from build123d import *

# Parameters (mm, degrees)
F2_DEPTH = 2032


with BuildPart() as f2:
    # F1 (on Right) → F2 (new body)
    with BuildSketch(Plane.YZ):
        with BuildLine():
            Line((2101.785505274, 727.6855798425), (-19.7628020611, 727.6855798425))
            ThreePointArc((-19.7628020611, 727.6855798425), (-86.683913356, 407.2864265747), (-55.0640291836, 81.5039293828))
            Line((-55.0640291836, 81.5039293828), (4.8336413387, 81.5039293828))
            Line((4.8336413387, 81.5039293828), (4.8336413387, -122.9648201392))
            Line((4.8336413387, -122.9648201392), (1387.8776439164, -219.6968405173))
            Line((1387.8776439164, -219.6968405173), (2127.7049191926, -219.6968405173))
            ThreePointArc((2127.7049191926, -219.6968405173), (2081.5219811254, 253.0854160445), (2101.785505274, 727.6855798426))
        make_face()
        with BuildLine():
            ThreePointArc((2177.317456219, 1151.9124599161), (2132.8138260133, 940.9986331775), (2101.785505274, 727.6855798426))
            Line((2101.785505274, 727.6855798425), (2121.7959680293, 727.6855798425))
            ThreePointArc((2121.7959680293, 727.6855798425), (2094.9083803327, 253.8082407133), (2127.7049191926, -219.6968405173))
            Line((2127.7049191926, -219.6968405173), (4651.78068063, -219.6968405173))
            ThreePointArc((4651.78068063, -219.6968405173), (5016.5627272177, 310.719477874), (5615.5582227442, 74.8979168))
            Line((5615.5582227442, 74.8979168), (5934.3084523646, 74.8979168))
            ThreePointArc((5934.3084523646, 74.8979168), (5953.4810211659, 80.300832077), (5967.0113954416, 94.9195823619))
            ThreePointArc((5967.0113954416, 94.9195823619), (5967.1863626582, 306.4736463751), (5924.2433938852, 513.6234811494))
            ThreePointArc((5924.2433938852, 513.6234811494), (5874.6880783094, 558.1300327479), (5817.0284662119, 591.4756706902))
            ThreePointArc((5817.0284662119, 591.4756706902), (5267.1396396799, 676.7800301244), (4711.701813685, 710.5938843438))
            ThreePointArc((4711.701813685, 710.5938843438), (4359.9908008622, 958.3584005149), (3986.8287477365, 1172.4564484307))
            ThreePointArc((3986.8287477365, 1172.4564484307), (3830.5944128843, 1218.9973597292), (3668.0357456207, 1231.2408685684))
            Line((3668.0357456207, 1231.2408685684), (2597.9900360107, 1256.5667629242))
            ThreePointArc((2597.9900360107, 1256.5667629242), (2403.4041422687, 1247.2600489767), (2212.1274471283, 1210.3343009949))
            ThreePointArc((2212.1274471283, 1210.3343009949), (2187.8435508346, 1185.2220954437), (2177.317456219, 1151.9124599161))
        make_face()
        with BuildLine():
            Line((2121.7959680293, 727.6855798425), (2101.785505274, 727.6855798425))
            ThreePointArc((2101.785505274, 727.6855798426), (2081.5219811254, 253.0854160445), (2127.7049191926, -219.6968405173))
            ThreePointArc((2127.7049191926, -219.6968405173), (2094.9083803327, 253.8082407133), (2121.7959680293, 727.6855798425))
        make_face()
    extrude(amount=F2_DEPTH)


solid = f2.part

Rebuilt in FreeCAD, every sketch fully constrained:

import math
import FreeCAD as App
import Part
import Sketcher
from FreeCAD import Vector
Q = App.Units.Quantity

doc = App.newDocument("Part")
params = doc.addObject("Spreadsheet::Sheet", "Params")
for row, (alias, value) in enumerate([
    ("sketch1_radius", "30 in"),
    ("sketch1_radius2", "3 in"),
    ("pad1_length", "80 in"),
], start=1):
    params.set(f"A{row}", alias)
    params.set(f"B{row}", "=" + value)
    params.setAlias(f"B{row}", alias)

body = doc.addObject("PartDesign::Body", "Body")

sketch1 = body.newObject("Sketcher::SketchObject", "Sketch")
sketch1.AttachmentSupport = (doc.getObject("YZ_Plane"), [""])
sketch1.MapMode = "FlatFace"
sketch1.addGeometry(Part.LineSegment(Vector(2102, 728, 0), Vector(-20, 728, 0)), False)
sketch1.addGeometry(Part.ArcOfCircle(Part.Circle(Vector(997, 348, 0), Vector(0, 0, 1), 1086), math.radians(160), math.radians(194)), False)
sketch1.addGeometry(Part.LineSegment(Vector(-55, 82, 0), Vector(5, 82, 0)), False)
sketch1.addGeometry(Part.LineSegment(Vector(5, 82, 0), Vector(5, -123, 0)), False)
sketch1.addGeometry(Part.LineSegment(Vector(5, -123, 0), Vector(1388, -220, 0)), False)
sketch1.addGeometry(Part.LineSegment(Vector(1388, -220, 0), Vector(4652, -220, 0)), False)
sketch1.addGeometry(Part.ArcOfCircle(Part.Circle(Vector(5168, -184, 0), Vector(0, 0, 1), 517), math.radians(30), math.radians(184)), False)
sketch1.addGeometry(Part.LineSegment(Vector(5616, 75, 0), Vector(5934, 75, 0)), False)
sketch1.addGeometry(Part.ArcOfCircle(Part.Circle(Vector(5934, 112, 0), Vector(0, 0, 1), 37), math.radians(-90), math.radians(-27)), False)
sketch1.addGeometry(Part.ArcOfCircle(Part.Circle(Vector(4940, 202, 0), Vector(0, 0, 1), 1033), math.radians(-6), math.radians(18)), False)
sketch1.addGeometry(Part.ArcOfCircle(Part.Circle(Vector(5686, 298, 0), Vector(0, 0, 1), 322), math.radians(42), math.radians(66)), False)
sketch1.addGeometry(Part.ArcOfCircle(Part.Circle(Vector(4626, -5268, 0), Vector(0, 0, 1), 5979), math.radians(78.51), math.radians(89.18)), False)
sketch1.addGeometry(Part.ArcOfCircle(Part.Circle(Vector(1869, -2952, 0), Vector(0, 0, 1), 4637), math.radians(52.18), math.radians(62.81)), False)
sketch1.addGeometry(Part.ArcOfCircle(Part.Circle(Vector(3692, 470, 0), Vector(0, 0, 1), 762), math.radians(67), math.radians(92)), False)
sketch1.addGeometry(Part.LineSegment(Vector(3668, 1231, 0), Vector(2598, 1257, 0)), False)
sketch1.addGeometry(Part.ArcOfCircle(Part.Circle(Vector(2566, -107, 0), Vector(0, 0, 1), 1364), math.radians(88.64), math.radians(105.02)), False)
sketch1.addGeometry(Part.ArcOfCircle(Part.Circle(Vector(2253, 1146, 0), Vector(0, 0, 1), 76), math.radians(123), math.radians(176)), False)
sketch1.addGeometry(Part.ArcOfCircle(Part.Circle(Vector(5475, 346, 0), Vector(0, 0, 1), 3395), math.radians(166.27), math.radians(173.54)), False)
sketch1.addConstraint(Sketcher.Constraint("Coincident", 0, 2, 1, 1))
sketch1.addConstraint(Sketcher.Constraint("Coincident", 1, 2, 2, 1))
sketch1.addConstraint(Sketcher.Constraint("Coincident", 2, 2, 3, 1))
sketch1.addConstraint(Sketcher.Constraint("Coincident", 3, 2, 4, 1))
sketch1.addConstraint(Sketcher.Constraint("Coincident", 4, 2, 5, 1))
sketch1.addConstraint(Sketcher.Constraint("Coincident", 5, 2, 6, 2))
sketch1.addConstraint(Sketcher.Constraint("Coincident", 6, 1, 7, 1))
sketch1.addConstraint(Sketcher.Constraint("Tangent", 7, 2, 8, 1))
sketch1.addConstraint(Sketcher.Constraint("Coincident", 8, 2, 9, 1))
sketch1.addConstraint(Sketcher.Constraint("Coincident", 9, 2, 10, 1))
sketch1.addConstraint(Sketcher.Constraint("Coincident", 10, 2, 11, 1))
sketch1.addConstraint(Sketcher.Constraint("Coincident", 11, 2, 12, 1))
sketch1.addConstraint(Sketcher.Constraint("Coincident", 12, 2, 13, 1))
sketch1.addConstraint(Sketcher.Constraint("Coincident", 13, 2, 14, 1))
sketch1.addConstraint(Sketcher.Constraint("Coincident", 14, 2, 15, 1))
sketch1.addConstraint(Sketcher.Constraint("Coincident", 15, 2, 16, 1))
sketch1.addConstraint(Sketcher.Constraint("Coincident", 16, 2, 17, 1))
sketch1.addConstraint(Sketcher.Constraint("Coincident", 17, 2, 0, 1))
sketch1.addConstraint(Sketcher.Constraint("Horizontal", 0))
sketch1.addConstraint(Sketcher.Constraint("Horizontal", 2))
sketch1.addConstraint(Sketcher.Constraint("Vertical", 3))
sketch1.addConstraint(Sketcher.Constraint("Horizontal", 5))
sketch1.addConstraint(Sketcher.Constraint("Horizontal", 7))
sketch1.addConstraint(Sketcher.Constraint("Radius", 13, Q("30 in")))
sketch1.addConstraint(Sketcher.Constraint("Radius", 16, Q("3 in")))
sketch1.addConstraint(Sketcher.Constraint("Radius", 9, 1032.597911))
sketch1.addConstraint(Sketcher.Constraint("Radius", 10, 321.654232))
sketch1.addConstraint(Sketcher.Constraint("Radius", 15, 1364.304742))
sketch1.addConstraint(Sketcher.Constraint("Radius", 1, 1085.584113))
sketch1.addConstraint(Sketcher.Constraint("Radius", 6, 517.211263))
sketch1.addConstraint(Sketcher.Constraint("Radius", 8, 36.718963))
sketch1.addConstraint(Sketcher.Constraint("Radius", 11, 5979.198113))
sketch1.addConstraint(Sketcher.Constraint("Radius", 12, 4636.511243))
sketch1.addConstraint(Sketcher.Constraint("Radius", 17, 3394.786005))
sketch1.addConstraint(Sketcher.Constraint("DistanceY", 1, 3, 16, 3, Q("31.4231999 in")))
sketch1.addConstraint(Sketcher.Constraint("DistanceX", 2, 1, 2, 2, 59.897671))
sketch1.addConstraint(Sketcher.Constraint("DistanceX", 7, 1, 7, 2, 318.75023))
sketch1.addConstraint(Sketcher.Constraint("DistanceY", 3, 2, 3, 1, 204.46875))
sketch1.addConstraint(Sketcher.Constraint("DistanceY", -1, 1, 16, 3, 1146.218001))
sketch1.addConstraint(Sketcher.Constraint("DistanceY", -1, 1, 15, 2, 1210.334301))
sketch1.addConstraint(Sketcher.Constraint("DistanceX", 6, 3, 8, 3, 766.556701))
sketch1.addConstraint(Sketcher.Constraint("DistanceY", 11, 3, 6, 3, 5084.096))
sketch1.addConstraint(Sketcher.Constraint("DistanceY", 6, 3, 17, 3, 529.8295))
sketch1.addConstraint(Sketcher.Constraint("DistanceY", 3, 2, 0, 2, 850.6504))
sketch1.addConstraint(Sketcher.Constraint("DistanceX", 4, 2, 15, 3, 1177.831001))
sketch1.addConstraint(Sketcher.Constraint("DistanceY", 8, 3, 9, 2, 402.006602))
sketch1.addConstraint(Sketcher.Constraint("DistanceY", 8, 2, 9, 2, 418.703899))
sketch1.addConstraint(Sketcher.Constraint("DistanceY", 17, 3, 12, 2, 826.527901))
sketch1.addConstraint(Sketcher.Constraint("Distance", 4, 1386.422662))
sketch1.addConstraint(Sketcher.Constraint("DistanceX", 0, 2, 0, 1, 2121.548307))
sketch1.addConstraint(Sketcher.Constraint("DistanceX", 5, 1, 5, 2, 3263.903037))
sketch1.addConstraint(Sketcher.Constraint("DistanceX", -1, 1, 1, 3, 997.283859))
sketch1.addConstraint(Sketcher.Constraint("DistanceX", -1, 1, 6, 3, 5167.751751))
sketch1.addConstraint(Sketcher.Constraint("DistanceY", -1, 1, 8, 3, 111.616879))
sketch1.addConstraint(Sketcher.Constraint("DistanceY", -1, 1, 9, 3, 201.546139))
sketch1.addConstraint(Sketcher.Constraint("DistanceY", -1, 1, 10, 3, 297.855492))
sketch1.addConstraint(Sketcher.Constraint("DistanceY", 12, 3, -1, 1, 2951.870531))
sketch1.addConstraint(Sketcher.Constraint("DistanceY", -1, 1, 0, 2, 727.68558))
sketch1.addConstraint(Sketcher.Constraint("DistanceY", -1, 1, 10, 2, 591.475671))
sketch1.addConstraint(Sketcher.Constraint("DistanceY", -1, 1, 13, 2, 1231.240869))
sketch1.addConstraint(Sketcher.Constraint("DistanceY", -1, 1, 16, 2, 1151.91246))
sketch1.addConstraint(Sketcher.Constraint("DistanceX", 12, 3, 10, 3, 3817.158241))
sketch1.addConstraint(Sketcher.Constraint("DistanceX", 13, 3, 9, 3, 1247.519779))
sketch1.addConstraint(Sketcher.Constraint("DistanceY", 16, 3, 14, 2, 110.348762))
sketch1.setExpression("Constraints[23]", "Params.sketch1_radius")
sketch1.setExpression("Constraints[24]", "Params.sketch1_radius2")
pad1 = body.newObject("PartDesign::Pad", "Pad")
pad1.Profile = sketch1
pad1.setExpression("Length", "Params.pad1_length")

doc.recompute()
